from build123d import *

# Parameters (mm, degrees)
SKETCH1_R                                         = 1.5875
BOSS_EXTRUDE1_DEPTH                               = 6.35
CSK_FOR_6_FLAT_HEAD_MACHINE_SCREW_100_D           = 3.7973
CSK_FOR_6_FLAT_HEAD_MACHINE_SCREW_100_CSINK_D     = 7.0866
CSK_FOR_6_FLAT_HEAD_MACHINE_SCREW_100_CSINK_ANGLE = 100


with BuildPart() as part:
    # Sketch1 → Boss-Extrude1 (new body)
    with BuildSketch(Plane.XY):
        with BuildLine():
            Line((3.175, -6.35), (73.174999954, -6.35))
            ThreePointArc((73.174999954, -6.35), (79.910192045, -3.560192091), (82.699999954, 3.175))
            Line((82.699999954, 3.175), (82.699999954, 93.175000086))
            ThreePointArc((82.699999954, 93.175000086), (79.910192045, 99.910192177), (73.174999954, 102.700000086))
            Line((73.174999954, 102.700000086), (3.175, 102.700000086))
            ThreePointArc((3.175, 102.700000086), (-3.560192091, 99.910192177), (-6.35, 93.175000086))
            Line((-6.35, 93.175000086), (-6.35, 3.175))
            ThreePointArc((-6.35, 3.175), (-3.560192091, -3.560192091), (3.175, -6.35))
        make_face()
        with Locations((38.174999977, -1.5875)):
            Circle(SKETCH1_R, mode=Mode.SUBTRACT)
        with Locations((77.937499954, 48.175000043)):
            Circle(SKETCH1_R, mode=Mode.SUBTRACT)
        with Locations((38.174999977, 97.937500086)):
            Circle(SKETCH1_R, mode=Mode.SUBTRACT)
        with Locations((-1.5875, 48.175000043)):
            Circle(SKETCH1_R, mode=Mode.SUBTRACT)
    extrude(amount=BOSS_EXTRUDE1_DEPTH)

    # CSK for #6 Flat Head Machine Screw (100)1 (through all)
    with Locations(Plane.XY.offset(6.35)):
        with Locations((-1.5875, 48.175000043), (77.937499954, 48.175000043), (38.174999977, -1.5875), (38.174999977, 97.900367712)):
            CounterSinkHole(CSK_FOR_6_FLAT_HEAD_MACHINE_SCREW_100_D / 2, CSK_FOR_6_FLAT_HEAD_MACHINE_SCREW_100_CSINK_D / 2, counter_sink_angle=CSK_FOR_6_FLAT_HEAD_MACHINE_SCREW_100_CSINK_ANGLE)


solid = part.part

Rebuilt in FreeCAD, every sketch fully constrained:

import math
import FreeCAD as App
import Part
import Sketcher
from FreeCAD import Vector
Q = App.Units.Quantity

doc = App.newDocument("Part")
body = doc.addObject("PartDesign::Body", "Body")

# Sketch on XY plane
sketch1 = body.newObject("Sketcher::SketchObject", "Sketch")
sketch1.AttachmentSupport = (doc.getObject("XY_Plane"), [""])
sketch1.MapMode = "FlatFace"
sketch1.addGeometry([
    Part.LineSegment(Vector(3.2, -6.3, 0), Vector(73.2, -6.3, 0)),  # 0
    Part.ArcOfCircle(Part.Circle(Vector(73.2, 3.2, 0), Vector(0, 0, 1), 9.5), math.radians(-90), math.radians(0)),  # 1
    Part.LineSegment(Vector(82.7, 3.2, 0), Vector(82.7, 93.2, 0)),  # 2
    Part.ArcOfCircle(Part.Circle(Vector(73.2, 93.2, 0), Vector(0, 0, 1), 9.5), math.radians(0), math.radians(90)),  # 3
    Part.LineSegment(Vector(73.2, 102.7, 0), Vector(3.2, 102.7, 0)),  # 4
    Part.ArcOfCircle(Part.Circle(Vector(3.2, 93.2, 0), Vector(0, 0, 1), 9.5), math.radians(90), math.radians(180)),  # 5
    Part.LineSegment(Vector(-6.3, 93.2, 0), Vector(-6.3, 3.2, 0)),  # 6
    Part.ArcOfCircle(Part.Circle(Vector(3.2, 3.2, 0), Vector(0, 0, 1), 9.5), math.radians(180), math.radians(270)),  # 7
    Part.Circle(Vector(38.2, -1.6, 0), Vector(0, 0, 1), 1.6),  # 8
    Part.Circle(Vector(-1.6, 48.2, 0), Vector(0, 0, 1), 1.6),  # 9
    Part.Circle(Vector(77.9, 48.2, 0), Vector(0, 0, 1), 1.6),  # 10
    Part.Circle(Vector(38.2, 97.9, 0), Vector(0, 0, 1), 1.6),  # 11
], False)
sketch1.addConstraint([
    Sketcher.Constraint("Tangent", 0, 2, 1, 1),
    Sketcher.Constraint("Tangent", 1, 2, 2, 1),
    Sketcher.Constraint("Tangent", 2, 2, 3, 1),
    Sketcher.Constraint("Tangent", 3, 2, 4, 1),
    Sketcher.Constraint("Tangent", 4, 2, 5, 1),
    Sketcher.Constraint("Tangent", 5, 2, 6, 1),
    Sketcher.Constraint("Tangent", 6, 2, 7, 1),
    Sketcher.Constraint("Tangent", 7, 2, 0, 1),
    Sketcher.Constraint("Horizontal", 0),
    Sketcher.Constraint("Vertical", 2),
    Sketcher.Constraint("Horizontal", 4),
    Sketcher.Constraint("Vertical", 6),
    Sketcher.Constraint("Equal", 1, 3),
    Sketcher.Constraint("Equal", 3, 5),
    Sketcher.Constraint("Equal", 5, 7),
    Sketcher.Constraint("Equal", 8, 9),
    Sketcher.Constraint("Equal", 9, 10),
    Sketcher.Constraint("Equal", 10, 11),
    Sketcher.Constraint("Horizontal", 9, 3, 10, 3),
    Sketcher.Constraint("Vertical", 8, 3, 11, 3),
    Sketcher.Constraint("Diameter", 8, Q("0.125 in")),
    Sketcher.Constraint("Radius", 1, Q("0.375 in")),
    Sketcher.Constraint("DistanceY", 0, 2, -1, 1, Q("0.25 in")),
    Sketcher.Constraint("DistanceX", 5, 2, -1, 1, Q("0.25 in")),
    Sketcher.Constraint("DistanceY", 8, 3, -1, 1, Q("0.0625 in")),
    Sketcher.Constraint("DistanceX", 9, 3, -1, 1, Q("0.0625 in")),
    Sketcher.Constraint("DistanceX", 1, 3, 10, 3, Q("0.1875 in")),
    Sketcher.Constraint("DistanceY", 5, 3, 11, 3, Q("0.1875 in")),
    Sketcher.Constraint("DistanceX", 0, 1, 0, 2, Q("70 mm")),
    Sketcher.Constraint("DistanceY", 2, 1, 2, 2, Q("90 mm")),
    Sketcher.Constraint("DistanceX", -1, 1, 8, 3, Q("38.175 mm")),
    Sketcher.Constraint("DistanceY", -1, 1, 9, 3, Q("48.175 mm")),
])
pad1 = body.newObject("PartDesign::Pad", "Pad")
pad1.Profile = sketch1
pad1.Length = Q("0.25 in")

# Sketch on XY plane
sketch2 = body.newObject("Sketcher::SketchObject", "Sketch001")
sketch2.AttachmentSupport = (doc.getObject("XY_Plane"), [""])
sketch2.MapMode = "FlatFace"
sketch2.AttachmentOffset = App.Placement(Vector(0, 0, 0.25 * 25.4), App.Rotation())
sketch2.addGeometry([
    Part.Circle(Vector(-1.6, 48.2, 0), Vector(0, 0, 1), 1.9),
    Part.Circle(Vector(77.9, 48.2, 0), Vector(0, 0, 1), 1.9),
    Part.Circle(Vector(38.2, -1.6, 0), Vector(0, 0, 1), 1.9),
    Part.Circle(Vector(38.2, 97.9, 0), Vector(0, 0, 1), 1.9),
], False)
sketch2.addConstraint([
    Sketcher.Constraint("Equal", 0, 1),
    Sketcher.Constraint("Equal", 1, 2),
    Sketcher.Constraint("Equal", 2, 3),
    Sketcher.Constraint("Horizontal", 0, 3, 1, 3),
    Sketcher.Constraint("Vertical", 2, 3, 3, 3),
    Sketcher.Constraint("Diameter", 0, Q("0.1495 in")),
    Sketcher.Constraint("DistanceX", 0, 3, -1, 1, Q("0.0625 in")),
    Sketcher.Constraint("DistanceY", 2, 3, -1, 1, Q("0.0625 in")),
    Sketcher.Constraint("DistanceY", -1, 1, 0, 3, Q("48.175 mm")),
    Sketcher.Constraint("DistanceX", -1, 1, 1, 3, Q("77.9375 mm")),
    Sketcher.Constraint("DistanceX", -1, 1, 2, 3, Q("38.175 mm")),
    Sketcher.Constraint("DistanceY", -1, 1, 3, 3, Q("97.900368 mm")),
])
doc.recompute()
hole = body.newObject("PartDesign::Hole", "Hole")
hole.Profile = sketch2
hole.ThreadType = "None"
hole.Diameter = Q("0.1495 in")
hole.DepthType = "ThroughAll"
hole.HoleCutType = "Countersink"
hole.HoleCutDiameter = Q("0.279 in")
hole.HoleCutCountersinkAngle = 100

doc.recompute()
